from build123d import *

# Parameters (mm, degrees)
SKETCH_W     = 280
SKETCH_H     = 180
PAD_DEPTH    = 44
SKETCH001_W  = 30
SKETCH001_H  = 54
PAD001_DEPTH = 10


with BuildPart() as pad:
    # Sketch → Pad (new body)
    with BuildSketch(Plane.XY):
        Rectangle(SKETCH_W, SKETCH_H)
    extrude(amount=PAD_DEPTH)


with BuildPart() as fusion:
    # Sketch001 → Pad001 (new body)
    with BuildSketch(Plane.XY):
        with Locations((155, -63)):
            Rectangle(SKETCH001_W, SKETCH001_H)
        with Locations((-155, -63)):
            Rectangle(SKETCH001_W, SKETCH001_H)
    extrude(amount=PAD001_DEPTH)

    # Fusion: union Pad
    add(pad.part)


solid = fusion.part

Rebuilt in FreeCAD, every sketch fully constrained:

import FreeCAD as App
import Part
import Sketcher

V = App.Vector
Q = App.Units.Quantity

doc = App.newDocument("Part")
body = doc.addObject("PartDesign::Body", "Body")

# Sketch on XY plane
sketch1 = body.newObject("Sketcher::SketchObject", "Sketch")
sketch1.AttachmentSupport = (doc.getObject("XY_Plane"), [""])
sketch1.MapMode = "FlatFace"
sketch1.addGeometry([
    Part.LineSegment(V(-140, 90, 0), V(-140, -90, 0)),
    Part.LineSegment(V(-140, -90, 0), V(140, -90, 0)),
    Part.LineSegment(V(140, -90, 0), V(140, 90, 0)),
    Part.LineSegment(V(140, 90, 0), V(-140, 90, 0)),
], False)
sketch1.addConstraint([
    Sketcher.Constraint("Coincident", 0, 2, 1, 1),
    Sketcher.Constraint("Coincident", 1, 2, 2, 1),
    Sketcher.Constraint("Coincident", 2, 2, 3, 1),
    Sketcher.Constraint("Coincident", 3, 2, 0, 1),
    Sketcher.Constraint("Vertical", 0),
    Sketcher.Constraint("Horizontal", 1),
    Sketcher.Constraint("Vertical", 2),
    Sketcher.Constraint("Horizontal", 3),
    Sketcher.Constraint("Symmetric", 0, 2, 2, 2, -1, 1),
    Sketcher.Constraint("DistanceX", 1, 1, 1, 2, Q("280 mm")),
    Sketcher.Constraint("DistanceY", 0, 2, 0, 1, Q("180 mm")),
])
pad1 = body.newObject("PartDesign::Pad", "Pad")
pad1.Profile = sketch1
pad1.Length = 44
body2 = doc.addObject("PartDesign::Body", "Body001")
body2.AllowCompound = True

# Sketch on XY plane
sketch2 = body2.newObject("Sketcher::SketchObject", "Sketch001")
sketch2.AttachmentSupport = (doc.getObject("XY_Plane001"), [""])
sketch2.MapMode = "FlatFace"
sketch2.addGeometry([
    Part.LineSegment(V(140, -36, 0), V(140, -90, 0)),  # 0
    Part.LineSegment(V(140, -90, 0), V(170, -90, 0)),  # 1
    Part.LineSegment(V(170, -90, 0), V(170, -36, 0)),  # 2
    Part.LineSegment(V(170, -36, 0), V(140, -36, 0)),  # 3
    Part.LineSegment(V(-170, -36, 0), V(-170, -90, 0)),  # 4
    Part.LineSegment(V(-170, -90, 0), V(-140, -90, 0)),  # 5
    Part.LineSegment(V(-140, -90, 0), V(-140, -36, 0)),  # 6
    Part.LineSegment(V(-140, -36, 0), V(-170, -36, 0)),  # 7
], False)
sketch2.addConstraint([
    Sketcher.Constraint("Coincident", 0, 2, 1, 1),
    Sketcher.Constraint("Coincident", 1, 2, 2, 1),
    Sketcher.Constraint("Coincident", 2, 2, 3, 1),
    Sketcher.Constraint("Coincident", 3, 2, 0, 1),
    Sketcher.Constraint("Coincident", 4, 2, 5, 1),
    Sketcher.Constraint("Coincident", 5, 2, 6, 1),
    Sketcher.Constraint("Coincident", 6, 2, 7, 1),
    Sketcher.Constraint("Coincident", 7, 2, 4, 1),
    Sketcher.Constraint("Vertical", 0),
    Sketcher.Constraint("Horizontal", 1),
    Sketcher.Constraint("Vertical", 2),
    Sketcher.Constraint("Horizontal", 3),
    Sketcher.Constraint("Vertical", 4),
    Sketcher.Constraint("Horizontal", 5),
    Sketcher.Constraint("Vertical", 6),
    Sketcher.Constraint("Horizontal", 7),
    Sketcher.Constraint("Symmetric", 1, 2, 4, 2, -2),
    Sketcher.Constraint("Symmetric", 3, 2, 6, 2, -2),
    Sketcher.Constraint("DistanceX", 1, 1, 1, 2, Q("30 mm")),
    Sketcher.Constraint("DistanceY", 0, 2, 0, 1, Q("54 mm")),
    Sketcher.Constraint("DistanceX", -1, 1, 0, 2, Q("140 mm")),
    Sketcher.Constraint("DistanceY", 0, 2, -1, 1, Q("90 mm")),
])
pad2 = body2.newObject("PartDesign::Pad", "Pad001")
pad2.Profile = sketch2
pad2.Length = 10
doc.recompute()

boolean = body2.newObject("PartDesign::Boolean", "Boolean")
boolean.Type = "Fuse"
boolean.addObjects([body])

doc.recompute()
